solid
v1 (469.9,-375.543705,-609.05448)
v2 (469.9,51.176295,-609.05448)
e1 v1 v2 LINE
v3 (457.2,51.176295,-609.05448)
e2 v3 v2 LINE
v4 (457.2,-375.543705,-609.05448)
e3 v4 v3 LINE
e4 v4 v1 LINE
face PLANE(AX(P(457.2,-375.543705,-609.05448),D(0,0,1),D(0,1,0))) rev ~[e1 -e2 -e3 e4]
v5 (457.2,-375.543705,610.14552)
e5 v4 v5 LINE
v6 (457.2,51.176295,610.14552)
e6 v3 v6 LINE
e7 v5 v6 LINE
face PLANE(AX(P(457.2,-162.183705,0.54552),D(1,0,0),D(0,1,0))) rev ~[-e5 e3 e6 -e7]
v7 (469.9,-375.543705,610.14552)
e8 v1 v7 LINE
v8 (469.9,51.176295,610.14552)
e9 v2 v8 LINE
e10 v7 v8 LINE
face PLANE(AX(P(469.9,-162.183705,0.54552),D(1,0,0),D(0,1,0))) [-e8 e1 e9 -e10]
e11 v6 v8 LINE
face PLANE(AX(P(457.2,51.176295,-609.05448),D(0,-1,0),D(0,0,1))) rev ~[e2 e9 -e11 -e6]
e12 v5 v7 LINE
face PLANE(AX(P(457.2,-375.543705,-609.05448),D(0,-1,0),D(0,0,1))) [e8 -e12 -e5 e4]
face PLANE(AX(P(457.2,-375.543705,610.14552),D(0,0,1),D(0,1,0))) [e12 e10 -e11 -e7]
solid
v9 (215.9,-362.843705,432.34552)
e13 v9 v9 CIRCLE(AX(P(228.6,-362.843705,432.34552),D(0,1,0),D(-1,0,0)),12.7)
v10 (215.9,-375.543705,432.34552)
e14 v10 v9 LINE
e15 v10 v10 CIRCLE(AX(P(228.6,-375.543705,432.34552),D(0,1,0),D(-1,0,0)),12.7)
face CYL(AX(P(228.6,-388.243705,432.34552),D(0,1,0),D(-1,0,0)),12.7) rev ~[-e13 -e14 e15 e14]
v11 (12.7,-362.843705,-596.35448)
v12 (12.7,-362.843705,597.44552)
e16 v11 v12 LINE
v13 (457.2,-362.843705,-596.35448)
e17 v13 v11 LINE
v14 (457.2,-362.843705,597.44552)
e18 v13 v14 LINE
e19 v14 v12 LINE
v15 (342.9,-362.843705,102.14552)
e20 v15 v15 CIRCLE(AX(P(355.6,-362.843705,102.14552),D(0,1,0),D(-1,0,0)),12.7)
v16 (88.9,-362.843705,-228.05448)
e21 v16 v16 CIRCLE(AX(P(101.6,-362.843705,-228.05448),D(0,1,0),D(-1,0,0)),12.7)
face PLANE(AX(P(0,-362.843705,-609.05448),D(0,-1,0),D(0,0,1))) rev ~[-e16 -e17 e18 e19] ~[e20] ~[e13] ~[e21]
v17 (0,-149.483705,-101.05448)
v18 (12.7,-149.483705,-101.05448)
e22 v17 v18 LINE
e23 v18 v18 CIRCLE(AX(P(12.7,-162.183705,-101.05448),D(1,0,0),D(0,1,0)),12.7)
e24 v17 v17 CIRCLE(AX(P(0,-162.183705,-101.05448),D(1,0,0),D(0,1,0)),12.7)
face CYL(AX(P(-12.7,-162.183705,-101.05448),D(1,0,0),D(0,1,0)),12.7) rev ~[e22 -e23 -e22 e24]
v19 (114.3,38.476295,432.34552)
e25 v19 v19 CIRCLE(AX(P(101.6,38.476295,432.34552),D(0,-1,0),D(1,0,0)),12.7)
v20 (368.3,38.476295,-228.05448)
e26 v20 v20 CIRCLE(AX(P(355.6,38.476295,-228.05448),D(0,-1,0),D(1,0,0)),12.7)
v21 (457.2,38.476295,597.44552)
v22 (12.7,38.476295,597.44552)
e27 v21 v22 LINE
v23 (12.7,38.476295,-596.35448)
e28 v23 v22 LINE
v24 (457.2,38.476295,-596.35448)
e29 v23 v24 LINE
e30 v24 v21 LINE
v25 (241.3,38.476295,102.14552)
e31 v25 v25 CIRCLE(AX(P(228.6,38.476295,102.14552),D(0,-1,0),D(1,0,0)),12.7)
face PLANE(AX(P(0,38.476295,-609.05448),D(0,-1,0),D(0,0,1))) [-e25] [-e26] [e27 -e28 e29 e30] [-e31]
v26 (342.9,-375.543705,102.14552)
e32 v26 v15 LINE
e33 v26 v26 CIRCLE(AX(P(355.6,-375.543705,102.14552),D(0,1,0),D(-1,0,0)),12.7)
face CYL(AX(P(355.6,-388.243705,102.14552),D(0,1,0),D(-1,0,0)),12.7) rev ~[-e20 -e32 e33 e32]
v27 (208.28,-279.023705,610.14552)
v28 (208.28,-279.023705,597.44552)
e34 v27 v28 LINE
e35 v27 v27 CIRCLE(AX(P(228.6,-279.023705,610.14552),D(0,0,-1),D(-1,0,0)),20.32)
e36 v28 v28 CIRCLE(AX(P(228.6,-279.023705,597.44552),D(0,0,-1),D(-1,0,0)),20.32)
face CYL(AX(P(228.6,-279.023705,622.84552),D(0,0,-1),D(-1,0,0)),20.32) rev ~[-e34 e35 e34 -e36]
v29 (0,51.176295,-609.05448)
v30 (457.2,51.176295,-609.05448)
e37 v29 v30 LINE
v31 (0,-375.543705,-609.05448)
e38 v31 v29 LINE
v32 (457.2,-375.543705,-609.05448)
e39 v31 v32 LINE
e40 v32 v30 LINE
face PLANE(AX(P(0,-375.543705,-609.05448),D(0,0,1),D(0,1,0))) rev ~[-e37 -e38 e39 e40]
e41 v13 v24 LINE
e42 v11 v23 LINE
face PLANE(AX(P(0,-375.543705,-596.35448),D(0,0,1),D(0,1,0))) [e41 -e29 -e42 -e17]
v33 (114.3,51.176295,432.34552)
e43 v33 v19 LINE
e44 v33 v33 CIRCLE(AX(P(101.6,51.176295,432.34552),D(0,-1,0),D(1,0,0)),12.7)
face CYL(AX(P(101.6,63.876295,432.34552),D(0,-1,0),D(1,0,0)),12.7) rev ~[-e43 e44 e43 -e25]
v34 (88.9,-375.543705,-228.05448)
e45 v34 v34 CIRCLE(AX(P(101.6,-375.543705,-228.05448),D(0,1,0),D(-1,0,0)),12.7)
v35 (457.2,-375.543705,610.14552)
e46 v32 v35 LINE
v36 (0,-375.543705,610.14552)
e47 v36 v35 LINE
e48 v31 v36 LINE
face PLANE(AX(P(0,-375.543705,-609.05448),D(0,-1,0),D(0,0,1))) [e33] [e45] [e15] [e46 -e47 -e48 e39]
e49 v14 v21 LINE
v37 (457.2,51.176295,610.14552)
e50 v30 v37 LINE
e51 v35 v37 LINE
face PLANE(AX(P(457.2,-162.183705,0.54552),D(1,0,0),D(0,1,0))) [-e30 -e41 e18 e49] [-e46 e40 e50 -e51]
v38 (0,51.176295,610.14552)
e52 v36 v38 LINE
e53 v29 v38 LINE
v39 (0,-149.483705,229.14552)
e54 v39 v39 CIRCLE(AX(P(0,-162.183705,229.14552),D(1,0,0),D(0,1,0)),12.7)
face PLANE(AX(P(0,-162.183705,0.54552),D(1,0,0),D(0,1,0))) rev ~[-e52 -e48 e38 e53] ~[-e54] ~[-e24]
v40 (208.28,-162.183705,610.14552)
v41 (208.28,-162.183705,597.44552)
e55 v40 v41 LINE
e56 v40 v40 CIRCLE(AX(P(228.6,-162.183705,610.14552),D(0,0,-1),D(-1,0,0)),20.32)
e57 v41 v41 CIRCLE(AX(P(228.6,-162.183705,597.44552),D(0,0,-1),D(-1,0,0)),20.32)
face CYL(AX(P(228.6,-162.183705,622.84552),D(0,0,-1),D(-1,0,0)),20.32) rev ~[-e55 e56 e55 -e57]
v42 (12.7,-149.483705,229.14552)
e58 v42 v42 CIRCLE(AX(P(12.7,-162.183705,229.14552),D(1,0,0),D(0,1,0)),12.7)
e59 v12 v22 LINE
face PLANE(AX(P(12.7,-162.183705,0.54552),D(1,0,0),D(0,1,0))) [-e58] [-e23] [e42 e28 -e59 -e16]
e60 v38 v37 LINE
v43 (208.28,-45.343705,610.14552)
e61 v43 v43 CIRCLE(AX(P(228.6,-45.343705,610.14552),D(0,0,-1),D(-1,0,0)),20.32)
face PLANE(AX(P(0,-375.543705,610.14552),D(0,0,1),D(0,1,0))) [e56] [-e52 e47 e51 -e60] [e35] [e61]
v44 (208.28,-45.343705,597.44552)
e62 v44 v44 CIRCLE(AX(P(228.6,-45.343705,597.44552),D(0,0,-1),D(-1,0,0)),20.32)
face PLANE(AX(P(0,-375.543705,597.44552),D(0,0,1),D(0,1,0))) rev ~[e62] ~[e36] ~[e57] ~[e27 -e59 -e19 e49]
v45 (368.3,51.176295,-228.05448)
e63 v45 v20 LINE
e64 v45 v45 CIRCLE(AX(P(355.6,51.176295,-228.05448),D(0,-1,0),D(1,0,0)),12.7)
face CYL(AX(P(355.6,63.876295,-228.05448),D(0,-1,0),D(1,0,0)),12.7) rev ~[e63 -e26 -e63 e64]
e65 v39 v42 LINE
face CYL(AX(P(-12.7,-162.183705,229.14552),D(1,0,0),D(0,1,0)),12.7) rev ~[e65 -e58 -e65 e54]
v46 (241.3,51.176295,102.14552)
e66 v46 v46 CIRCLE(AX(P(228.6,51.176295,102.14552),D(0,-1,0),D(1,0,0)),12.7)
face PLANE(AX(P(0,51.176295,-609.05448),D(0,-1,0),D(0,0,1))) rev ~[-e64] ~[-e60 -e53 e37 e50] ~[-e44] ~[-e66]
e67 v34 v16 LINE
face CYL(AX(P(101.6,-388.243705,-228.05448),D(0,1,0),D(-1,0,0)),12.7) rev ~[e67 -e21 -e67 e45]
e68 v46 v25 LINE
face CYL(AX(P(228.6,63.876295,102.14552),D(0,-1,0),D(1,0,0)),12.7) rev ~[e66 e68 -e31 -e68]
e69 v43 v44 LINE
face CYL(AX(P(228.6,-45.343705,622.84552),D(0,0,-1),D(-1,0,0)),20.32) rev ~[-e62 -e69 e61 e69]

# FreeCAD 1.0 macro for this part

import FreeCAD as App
import Part
import Sketcher
from FreeCAD import Vector
Q = App.Units.Quantity


def faces_at(feature, points):
    """Names of the faces that lie closest to the given points."""
    faces = feature.Shape.Faces
    near = lambda p: min(range(len(faces)), key=lambda i: faces[i].distToShape(Part.Vertex(*p))[0])
    return sorted({f"Face{near(p) + 1}" for p in points})

doc = App.newDocument("Part")
params = doc.addObject("Spreadsheet::Sheet", "Params")
for row, (alias, value) in enumerate([
    ("sketch1_height", "48 in"),
    ("sketch1_width", "16.8 in"),
    ("pad1_length", "18 in"),
    ("thickness_wall", "0.5 in"),
    ("sketch2_diameter", "1.6 in"),
    ("hole_diameter", "1.6 in"),
    ("hole_depth", "0.5 in"),
    ("sketch3_diameter", "1.6 in"),
    ("hole2_diameter", "1.6 in"),
    ("hole2_depth", "0.5 in"),
    ("sketch4_diameter", "1.6 in"),
    ("hole3_diameter", "1.6 in"),
    ("hole3_depth", "0.5 in"),
    ("sketch5_diameter", "1 in"),
    ("hole4_diameter", "1 in"),
    ("hole4_depth", "0.5 in"),
    ("sketch6_diameter", "1 in"),
    ("hole5_diameter", "1 in"),
    ("hole5_depth", "0.5 in"),
    ("sketch7_diameter", "1 in"),
    ("hole6_diameter", "1 in"),
    ("hole6_depth", "0.5 in"),
    ("sketch8_diameter", "1 in"),
    ("hole7_diameter", "1 in"),
    ("hole7_depth", "0.5 in"),
    ("sketch9_height", "48 in"),
    ("sketch9_width", "16.8 in"),
    ("pad2_length", "0.5 in"),
], start=1):
    params.set(f"A{row}", alias)
    params.set(f"B{row}", "=" + value)
    params.setAlias(f"B{row}", alias)

body = doc.addObject("PartDesign::Body", "Body")

# Sketch on YZ plane
sketch1 = body.newObject("Sketcher::SketchObject", "Sketch")
sketch1.AttachmentSupport = (doc.getObject("YZ_Plane"), [""])
sketch1.MapMode = "FlatFace"
sketch1.addGeometry(Part.LineSegment(Vector(-375.543705, 610.14552, 0), Vector(-375.543705, -609.05448, 0)), False)
sketch1.addGeometry(Part.LineSegment(Vector(-375.543705, -609.05448, 0), Vector(51.176295, -609.05448, 0)), False)
sketch1.addGeometry(Part.LineSegment(Vector(51.176295, -609.05448, 0), Vector(51.176295, 610.14552, 0)), False)
sketch1.addGeometry(Part.LineSegment(Vector(51.176295, 610.14552, 0), Vector(-375.543705, 610.14552, 0)), False)
sketch1.addConstraint(Sketcher.Constraint("Coincident", 0, 2, 1, 1))
sketch1.addConstraint(Sketcher.Constraint("Coincident", 1, 2, 2, 1))
sketch1.addConstraint(Sketcher.Constraint("Coincident", 2, 2, 3, 1))
sketch1.addConstraint(Sketcher.Constraint("Coincident", 3, 2, 0, 1))
sketch1.addConstraint(Sketcher.Constraint("Vertical", 0))
sketch1.addConstraint(Sketcher.Constraint("Horizontal", 1))
sketch1.addConstraint(Sketcher.Constraint("Vertical", 2))
sketch1.addConstraint(Sketcher.Constraint("Horizontal", 3))
sketch1.addConstraint(Sketcher.Constraint("DistanceY", 0, 2, 0, 1, Q("48 in")))
sketch1.addConstraint(Sketcher.Constraint("DistanceX", 1, 1, 1, 2, Q("16.8 in")))
sketch1.addConstraint(Sketcher.Constraint("DistanceY", 0, 2, -1, 1, Q("609.05448 mm")))
sketch1.addConstraint(Sketcher.Constraint("DistanceX", 0, 2, -1, 1, Q("375.543705 mm")))
sketch1.setExpression("Constraints[8]", "Params.sketch1_height")
sketch1.setExpression("Constraints[9]", "Params.sketch1_width")
pad1 = body.newObject("PartDesign::Pad", "Pad")
pad1.Profile = sketch1
pad1.setExpression("Length", "Params.pad1_length")
doc.recompute()

thickness = body.newObject("PartDesign::Thickness", "Thickness")
thickness.Base = (pad1, faces_at(pad1, [(457.2, -162.184, 0.546)]))
thickness.setExpression("Value", "Params.thickness_wall")
thickness.Reversed = True
thickness.Join = "Arc"

# Sketch on XY plane
sketch2 = body.newObject("Sketcher::SketchObject", "Sketch001")
sketch2.AttachmentSupport = (doc.getObject("XY_Plane"), [""])
sketch2.MapMode = "FlatFace"
sketch2.AttachmentOffset = App.Placement(Vector(0, 0, 610.14552), App.Rotation())
sketch2.addGeometry(Part.Circle(Vector(228.6, -162.183705, 0), Vector(0, 0, 1), 20.32), False)
sketch2.addConstraint(Sketcher.Constraint("Diameter", 0, Q("1.6 in")))
sketch2.addConstraint(Sketcher.Constraint("DistanceX", -1, 1, 0, 3, Q("9 in")))
sketch2.addConstraint(Sketcher.Constraint("DistanceY", 0, 3, -1, 1, Q("162.183705 mm")))
sketch2.setExpression("Constraints[0]", "Params.sketch2_diameter")
doc.recompute()
hole = body.newObject("PartDesign::Hole", "Hole")
hole.Profile = sketch2
hole.ThreadType = "None"
hole.setExpression("Diameter", "Params.hole_diameter")
hole.DepthType = "Dimension"
hole.setExpression("Depth", "Params.hole_depth")
hole.DrillPoint = "Flat"

# Sketch on XY plane
sketch3 = body.newObject("Sketcher::SketchObject", "Sketch002")
sketch3.AttachmentSupport = (doc.getObject("XY_Plane"), [""])
sketch3.MapMode = "FlatFace"
sketch3.AttachmentOffset = App.Placement(Vector(0, 0, 610.14552), App.Rotation())
sketch3.addGeometry(Part.Circle(Vector(228.6, -45.343705, 0), Vector(0, 0, 1), 20.32), False)
sketch3.addConstraint(Sketcher.Constraint("Diameter", 0, Q("1.6 in")))
sketch3.addConstraint(Sketcher.Constraint("DistanceX", -1, 1, 0, 3, Q("9 in")))
sketch3.addConstraint(Sketcher.Constraint("DistanceY", 0, 3, -1, 1, Q("45.343705 mm")))
sketch3.setExpression("Constraints[0]", "Params.sketch3_diameter")
doc.recompute()
hole2 = body.newObject("PartDesign::Hole", "Hole001")
hole2.Profile = sketch3
hole2.ThreadType = "None"
hole2.setExpression("Diameter", "Params.hole2_diameter")
hole2.DepthType = "Dimension"
hole2.setExpression("Depth", "Params.hole2_depth")
hole2.DrillPoint = "Flat"

# Sketch on XY plane
sketch4 = body.newObject("Sketcher::SketchObject", "Sketch003")
sketch4.AttachmentSupport = (doc.getObject("XY_Plane"), [""])
sketch4.MapMode = "FlatFace"
sketch4.AttachmentOffset = App.Placement(Vector(0, 0, 610.14552), App.Rotation())
sketch4.addGeometry(Part.Circle(Vector(228.6, -279.023705, 0), Vector(0, 0, 1), 20.32), False)
sketch4.addConstraint(Sketcher.Constraint("Diameter", 0, Q("1.6 in")))
sketch4.addConstraint(Sketcher.Constraint("DistanceX", -1, 1, 0, 3, Q("9 in")))
sketch4.addConstraint(Sketcher.Constraint("DistanceY", 0, 3, -1, 1, Q("279.023705 mm")))
sketch4.setExpression("Constraints[0]", "Params.sketch4_diameter")
doc.recompute()
hole3 = body.newObject("PartDesign::Hole", "Hole002")
hole3.Profile = sketch4
hole3.ThreadType = "None"
hole3.setExpression("Diameter", "Params.hole3_diameter")
hole3.DepthType = "Dimension"
hole3.setExpression("Depth", "Params.hole3_depth")
hole3.DrillPoint = "Flat"

# Sketch on XZ plane
sketch5 = body.newObject("Sketcher::SketchObject", "Sketch004")
sketch5.AttachmentSupport = (doc.getObject("XZ_Plane"), [""])
sketch5.MapMode = "FlatFace"
sketch5.AttachmentOffset = App.Placement(Vector(0, 0, 375.543705), App.Rotation())
sketch5.addGeometry(Part.Circle(Vector(101.6, -228.05448, 0), Vector(0, 0, 1), 12.7), False)
sketch5.addConstraint(Sketcher.Constraint("Diameter", 0, Q("1 in")))
sketch5.addConstraint(Sketcher.Constraint("DistanceX", -1, 1, 0, 3, Q("4 in")))
sketch5.addConstraint(Sketcher.Constraint("DistanceY", 0, 3, -1, 1, Q("228.05448 mm")))
sketch5.setExpression("Constraints[0]", "Params.sketch5_diameter")
doc.recompute()
hole4 = body.newObject("PartDesign::Hole", "Hole003")
hole4.Profile = sketch5
hole4.ThreadType = "None"
hole4.setExpression("Diameter", "Params.hole4_diameter")
hole4.DepthType = "Dimension"
hole4.setExpression("Depth", "Params.hole4_depth")
hole4.DrillPoint = "Flat"

# Sketch on XZ plane
sketch6 = body.newObject("Sketcher::SketchObject", "Sketch005")
sketch6.AttachmentSupport = (doc.getObject("XZ_Plane"), [""])
sketch6.MapMode = "FlatFace"
sketch6.AttachmentOffset = App.Placement(Vector(0, 0, 375.543705), App.Rotation())
sketch6.addGeometry(Part.Circle(Vector(228.6, 432.34552, 0), Vector(0, 0, 1), 12.7), False)
sketch6.addGeometry(Part.Circle(Vector(355.6, 102.14552, 0), Vector(0, 0, 1), 12.7), False)
sketch6.addConstraint(Sketcher.Constraint("Equal", 0, 1))
sketch6.addConstraint(Sketcher.Constraint("Diameter", 0, Q("1 in")))
sketch6.addConstraint(Sketcher.Constraint("DistanceX", -1, 1, 0, 3, Q("9 in")))
sketch6.addConstraint(Sketcher.Constraint("DistanceX", -1, 1, 1, 3, Q("14 in")))
sketch6.addConstraint(Sketcher.Constraint("DistanceY", 1, 3, 0, 3, Q("13 in")))
sketch6.addConstraint(Sketcher.Constraint("DistanceY", -1, 1, 0, 3, Q("432.34552 mm")))
sketch6.setExpression("Constraints[1]", "Params.sketch6_diameter")
doc.recompute()
hole5 = body.newObject("PartDesign::Hole", "Hole004")
hole5.Profile = sketch6
hole5.ThreadType = "None"
hole5.setExpression("Diameter", "Params.hole5_diameter")
hole5.DepthType = "Dimension"
hole5.setExpression("Depth", "Params.hole5_depth")
hole5.DrillPoint = "Flat"

# Sketch on YZ plane
sketch7 = body.newObject("Sketcher::SketchObject", "Sketch006")
sketch7.AttachmentSupport = (doc.getObject("YZ_Plane"), [""])
sketch7.MapMode = "FlatFace"
sketch7.addGeometry(Part.Circle(Vector(-162.183705, 229.14552, 0), Vector(0, 0, 1), 12.7), False)
sketch7.addGeometry(Part.Circle(Vector(-162.183705, -101.05448, 0), Vector(0, 0, 1), 12.7), False)
sketch7.addConstraint(Sketcher.Constraint("Equal", 0, 1))
sketch7.addConstraint(Sketcher.Constraint("Vertical", 0, 3, 1, 3))
sketch7.addConstraint(Sketcher.Constraint("Diameter", 0, Q("1 in")))
sketch7.addConstraint(Sketcher.Constraint("DistanceY", 1, 3, 0, 3, Q("13 in")))
sketch7.addConstraint(Sketcher.Constraint("DistanceY", -1, 1, 0, 3, Q("229.14552 mm")))
sketch7.addConstraint(Sketcher.Constraint("DistanceX", 0, 3, -1, 1, Q("162.183705 mm")))
sketch7.setExpression("Constraints[2]", "Params.sketch7_diameter")
doc.recompute()
hole6 = body.newObject("PartDesign::Hole", "Hole005")
hole6.Profile = sketch7
hole6.ThreadType = "None"
hole6.setExpression("Diameter", "Params.hole6_diameter")
hole6.DepthType = "Dimension"
hole6.setExpression("Depth", "Params.hole6_depth")
hole6.DrillPoint = "Flat"
hole6.Reversed = True

# Sketch on XZ plane
sketch8 = body.newObject("Sketcher::SketchObject", "Sketch007")
sketch8.AttachmentSupport = (doc.getObject("XZ_Plane"), [""])
sketch8.MapMode = "FlatFace"
sketch8.AttachmentOffset = App.Placement(Vector(0, 0, -51.176295), App.Rotation())
sketch8.addGeometry(Part.Circle(Vector(101.6, 432.34552, 0), Vector(0, 0, 1), 12.7), False)
sketch8.addGeometry(Part.Circle(Vector(228.6, 102.14552, 0), Vector(0, 0, 1), 12.7), False)
sketch8.addGeometry(Part.Circle(Vector(355.6, -228.05448, 0), Vector(0, 0, 1), 12.7), False)
sketch8.addConstraint(Sketcher.Constraint("Equal", 0, 1))
sketch8.addConstraint(Sketcher.Constraint("Equal", 1, 2))
sketch8.addConstraint(Sketcher.Constraint("Diameter", 0, Q("1 in")))
sketch8.addConstraint(Sketcher.Constraint("DistanceX", -1, 1, 0, 3, Q("4 in")))
sketch8.addConstraint(Sketcher.Constraint("DistanceX", -1, 1, 1, 3, Q("9 in")))
sketch8.addConstraint(Sketcher.Constraint("DistanceX", -1, 1, 2, 3, Q("14 in")))
sketch8.addConstraint(Sketcher.Constraint("DistanceY", 1, 3, 0, 3, Q("13 in")))
sketch8.addConstraint(Sketcher.Constraint("DistanceY", 2, 3, 1, 3, Q("13 in")))
sketch8.addConstraint(Sketcher.Constraint("DistanceY", -1, 1, 0, 3, Q("432.34552 mm")))
sketch8.setExpression("Constraints[2]", "Params.sketch8_diameter")
doc.recompute()
hole7 = body.newObject("PartDesign::Hole", "Hole006")
hole7.Profile = sketch8
hole7.ThreadType = "None"
hole7.setExpression("Diameter", "Params.hole7_diameter")
hole7.DepthType = "Dimension"
hole7.setExpression("Depth", "Params.hole7_depth")
hole7.DrillPoint = "Flat"
hole7.Reversed = True
body2 = doc.addObject("PartDesign::Body", "Body001")

# Sketch on YZ plane
sketch9 = body2.newObject("Sketcher::SketchObject", "Sketch008")
sketch9.AttachmentSupport = (doc.getObject("YZ_Plane001"), [""])
sketch9.MapMode = "FlatFace"
sketch9.AttachmentOffset = App.Placement(Vector(0, 0, 18 * 25.4), App.Rotation())
sketch9.addGeometry(Part.LineSegment(Vector(-375.543705, 610.14552, 0), Vector(-375.543705, -609.05448, 0)), False)
sketch9.addGeometry(Part.LineSegment(Vector(-375.543705, -609.05448, 0), Vector(51.176295, -609.05448, 0)), False)
sketch9.addGeometry(Part.LineSegment(Vector(51.176295, -609.05448, 0), Vector(51.176295, 610.14552, 0)), False)
sketch9.addGeometry(Part.LineSegment(Vector(51.176295, 610.14552, 0), Vector(-375.543705, 610.14552, 0)), False)
sketch9.addConstraint(Sketcher.Constraint("Coincident", 0, 2, 1, 1))
sketch9.addConstraint(Sketcher.Constraint("Coincident", 1, 2, 2, 1))
sketch9.addConstraint(Sketcher.Constraint("Coincident", 2, 2, 3, 1))
sketch9.addConstraint(Sketcher.Constraint("Coincident", 3, 2, 0, 1))
sketch9.addConstraint(Sketcher.Constraint("Vertical", 0))
sketch9.addConstraint(Sketcher.Constraint("Horizontal", 1))
sketch9.addConstraint(Sketcher.Constraint("Vertical", 2))
sketch9.addConstraint(Sketcher.Constraint("Horizontal", 3))
sketch9.addConstraint(Sketcher.Constraint("DistanceY", 0, 2, 0, 1, Q("48 in")))
sketch9.addConstraint(Sketcher.Constraint("DistanceX", 1, 1, 1, 2, Q("16.8 in")))
sketch9.addConstraint(Sketcher.Constraint("DistanceY", 0, 2, -1, 1, Q("609.05448 mm")))
sketch9.addConstraint(Sketcher.Constraint("DistanceX", 0, 2, -1, 1, Q("375.543705 mm")))
sketch9.setExpression("Constraints[8]", "Params.sketch9_height")
sketch9.setExpression("Constraints[9]", "Params.sketch9_width")
pad2 = body2.newObject("PartDesign::Pad", "Pad001")
pad2.Profile = sketch9
pad2.setExpression("Length", "Params.pad2_length")

doc.recompute()
